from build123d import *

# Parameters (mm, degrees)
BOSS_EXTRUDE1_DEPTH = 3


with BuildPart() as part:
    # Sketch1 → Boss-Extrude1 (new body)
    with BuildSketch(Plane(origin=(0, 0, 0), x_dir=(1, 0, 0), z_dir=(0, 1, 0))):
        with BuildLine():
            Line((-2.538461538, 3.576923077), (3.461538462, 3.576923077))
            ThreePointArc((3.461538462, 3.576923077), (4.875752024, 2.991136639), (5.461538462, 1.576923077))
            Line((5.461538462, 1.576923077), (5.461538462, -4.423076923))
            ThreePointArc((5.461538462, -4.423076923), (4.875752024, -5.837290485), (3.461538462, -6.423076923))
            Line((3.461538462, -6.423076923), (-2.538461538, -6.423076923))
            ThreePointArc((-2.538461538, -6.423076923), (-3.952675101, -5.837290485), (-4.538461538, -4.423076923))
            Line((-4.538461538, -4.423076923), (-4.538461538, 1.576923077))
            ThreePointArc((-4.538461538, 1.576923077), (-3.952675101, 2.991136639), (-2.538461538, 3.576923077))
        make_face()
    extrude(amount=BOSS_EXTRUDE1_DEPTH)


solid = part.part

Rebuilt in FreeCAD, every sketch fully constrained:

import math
import FreeCAD as App
import Part
import Sketcher
from FreeCAD import Vector

doc = App.newDocument("Part")
body = doc.addObject("PartDesign::Body", "Body")

sketch1 = doc.addObject("Sketcher::SketchObject", "Sketch")
body.addObject(sketch1)
sketch1.AttachmentSupport = (doc.XZ_Plane, [""])
sketch1.MapMode = "FlatFace"
sketch1.addGeometry([
    Part.LineSegment(Vector(3.5, -3.6, 0), Vector(-2.5, -3.6, 0)),
    Part.ArcOfCircle(Part.Circle(Vector(-2.5, -1.6, 0), Vector(0, 0, 1), 2), math.radians(180), math.radians(270)),
    Part.LineSegment(Vector(-4.5, -1.6, 0), Vector(-4.5, 4.4, 0)),
    Part.ArcOfCircle(Part.Circle(Vector(-2.5, 4.4, 0), Vector(0, 0, 1), 2), math.radians(90), math.radians(180)),
    Part.LineSegment(Vector(-2.5, 6.4, 0), Vector(3.5, 6.4, 0)),
    Part.ArcOfCircle(Part.Circle(Vector(3.5, 4.4, 0), Vector(0, 0, 1), 2), math.radians(0), math.radians(90)),
    Part.LineSegment(Vector(5.5, 4.4, 0), Vector(5.5, -1.6, 0)),
    Part.ArcOfCircle(Part.Circle(Vector(3.5, -1.6, 0), Vector(0, 0, 1), 2), math.radians(-90), math.radians(0)),
], False)
sketch1.addConstraint([
    Sketcher.Constraint("Tangent", 0, 2, 1, 2),
    Sketcher.Constraint("Tangent", 1, 1, 2, 1),
    Sketcher.Constraint("Tangent", 2, 2, 3, 2),
    Sketcher.Constraint("Tangent", 3, 1, 4, 1),
    Sketcher.Constraint("Tangent", 4, 2, 5, 2),
    Sketcher.Constraint("Tangent", 5, 1, 6, 1),
    Sketcher.Constraint("Tangent", 6, 2, 7, 2),
    Sketcher.Constraint("Tangent", 7, 1, 0, 1),
    Sketcher.Constraint("Horizontal", 0),
    Sketcher.Constraint("Vertical", 2),
    Sketcher.Constraint("Horizontal", 4),
    Sketcher.Constraint("Vertical", 6),
    Sketcher.Constraint("Equal", 1, 3),
    Sketcher.Constraint("Equal", 3, 5),
    Sketcher.Constraint("Equal", 5, 7),
    Sketcher.Constraint("Equal", 4, 2),
    Sketcher.Constraint("Radius", 1, 2.0),
    Sketcher.Constraint("DistanceX", 0, 2, 0, 1, 6.0),
    Sketcher.Constraint("DistanceX", 1, 3, -1, 1, 2.538462),
    Sketcher.Constraint("DistanceY", 1, 3, -1, 1, 1.576923),
])
pad1 = doc.addObject("PartDesign::Pad", "Pad")
body.addObject(pad1)
pad1.Profile = sketch1
pad1.Length = 3
pad1.Reversed = True

doc.recompute()
